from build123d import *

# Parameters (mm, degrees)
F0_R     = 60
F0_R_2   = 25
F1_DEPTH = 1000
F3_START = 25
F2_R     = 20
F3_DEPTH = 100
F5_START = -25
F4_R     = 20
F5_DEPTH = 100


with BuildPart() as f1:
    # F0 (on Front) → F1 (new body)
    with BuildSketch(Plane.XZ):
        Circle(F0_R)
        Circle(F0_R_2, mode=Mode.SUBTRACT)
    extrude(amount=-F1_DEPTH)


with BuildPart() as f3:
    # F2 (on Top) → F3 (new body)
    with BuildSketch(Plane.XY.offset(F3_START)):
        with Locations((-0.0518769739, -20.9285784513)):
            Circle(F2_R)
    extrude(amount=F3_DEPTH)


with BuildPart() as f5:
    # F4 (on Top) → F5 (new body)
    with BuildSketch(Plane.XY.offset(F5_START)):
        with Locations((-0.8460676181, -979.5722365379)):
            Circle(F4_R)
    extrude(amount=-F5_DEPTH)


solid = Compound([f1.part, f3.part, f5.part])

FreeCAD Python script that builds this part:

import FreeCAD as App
import Part
import Sketcher
from FreeCAD import Vector
Q = App.Units.Quantity

doc = App.newDocument("Part")
body = doc.addObject("PartDesign::Body", "Body")

# Sketch on XZ plane
sketch1 = doc.addObject("Sketcher::SketchObject", "Sketch")
body.addObject(sketch1)
sketch1.AttachmentSupport = (doc.XZ_Plane, [""])
sketch1.MapMode = "FlatFace"
sketch1.addGeometry([
    Part.Circle(Vector(0, 0, 0), Vector(0, 0, 1), 60),
    Part.Circle(Vector(0, 0, 0), Vector(0, 0, 1), 25),
], False)
sketch1.addConstraint([
    Sketcher.Constraint("Coincident", 0, 3, -1, 1),
    Sketcher.Constraint("Coincident", 1, 3, -1, 1),
    Sketcher.Constraint("Diameter", 0, Q("120 mm")),
    Sketcher.Constraint("Diameter", 1, Q("50 mm")),
])
pad1 = doc.addObject("PartDesign::Pad", "Pad")
body.addObject(pad1)
pad1.Profile = sketch1
pad1.Length = 1000
pad1.Reversed = True
body2 = doc.addObject("PartDesign::Body", "Body001")

# Sketch on XY plane
sketch2 = doc.addObject("Sketcher::SketchObject", "Sketch001")
body2.addObject(sketch2)
sketch2.AttachmentSupport = (doc.getObject("XY_Plane001"), [""])
sketch2.MapMode = "FlatFace"
sketch2.AttachmentOffset = App.Placement(Vector(0, 0, 25), App.Rotation())
sketch2.addGeometry(Part.Circle(Vector(-0.051877, -20.928578, 0), Vector(0, 0, 1), 20), False)
sketch2.addConstraint([
    Sketcher.Constraint("Diameter", 0, Q("40 mm")),
    Sketcher.Constraint("DistanceY", 0, 3, -1, 1, Q("20.928578 mm")),
    Sketcher.Constraint("DistanceX", 0, 3, -1, 1, Q("0.051877 mm")),
])
pad2 = doc.addObject("PartDesign::Pad", "Pad001")
body2.addObject(pad2)
pad2.Profile = sketch2
pad2.Length = 100
body3 = doc.addObject("PartDesign::Body", "Body002")

# Sketch on XY plane
sketch3 = doc.addObject("Sketcher::SketchObject", "Sketch002")
body3.addObject(sketch3)
sketch3.AttachmentSupport = (doc.getObject("XY_Plane002"), [""])
sketch3.MapMode = "FlatFace"
sketch3.AttachmentOffset = App.Placement(Vector(0, 0, -25), App.Rotation())
sketch3.addGeometry(Part.Circle(Vector(-0.846068, -979.572237, 0), Vector(0, 0, 1), 20), False)
sketch3.addConstraint([
    Sketcher.Constraint("Diameter", 0, Q("40 mm")),
    Sketcher.Constraint("DistanceX", 0, 3, -1, 1, Q("0.846068 mm")),
    Sketcher.Constraint("DistanceY", 0, 3, -1, 1, Q("979.572237 mm")),
])
pad3 = doc.addObject("PartDesign::Pad", "Pad002")
body3.addObject(pad3)
pad3.Profile = sketch3
pad3.Length = 100
pad3.Reversed = True

doc.recompute()
